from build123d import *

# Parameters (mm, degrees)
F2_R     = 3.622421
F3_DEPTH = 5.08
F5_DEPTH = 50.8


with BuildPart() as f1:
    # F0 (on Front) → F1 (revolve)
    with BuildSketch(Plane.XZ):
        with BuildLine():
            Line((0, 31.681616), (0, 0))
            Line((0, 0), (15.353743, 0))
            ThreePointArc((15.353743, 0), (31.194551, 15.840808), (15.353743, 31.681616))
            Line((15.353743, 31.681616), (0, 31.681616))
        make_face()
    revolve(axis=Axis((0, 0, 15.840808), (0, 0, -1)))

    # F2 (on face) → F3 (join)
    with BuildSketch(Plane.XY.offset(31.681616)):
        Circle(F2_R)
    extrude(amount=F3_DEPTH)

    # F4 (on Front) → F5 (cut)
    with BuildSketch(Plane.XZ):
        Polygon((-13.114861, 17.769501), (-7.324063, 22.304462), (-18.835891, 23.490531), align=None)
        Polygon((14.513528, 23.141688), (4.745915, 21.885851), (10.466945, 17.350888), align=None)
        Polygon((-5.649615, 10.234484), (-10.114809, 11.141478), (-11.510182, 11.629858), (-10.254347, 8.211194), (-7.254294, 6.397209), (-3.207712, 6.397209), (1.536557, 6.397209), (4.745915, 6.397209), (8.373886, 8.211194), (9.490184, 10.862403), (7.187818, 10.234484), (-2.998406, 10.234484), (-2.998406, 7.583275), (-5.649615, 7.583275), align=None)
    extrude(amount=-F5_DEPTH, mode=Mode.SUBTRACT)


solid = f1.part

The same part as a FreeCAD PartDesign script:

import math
import FreeCAD as App
import Part
import Sketcher
from FreeCAD import Vector
Q = App.Units.Quantity


def add_polygon(sketch, points):
    """Adds a closed chain of lines whose ends are joined by coincident constraints."""
    first, n = sketch.GeometryCount, len(points)
    for a, b in zip(points, points[1:] + points[:1]):
        sketch.addGeometry(Part.LineSegment(App.Vector(*a, 0), App.Vector(*b, 0)), False)
    for i in range(n):
        sketch.addConstraint(Sketcher.Constraint("Coincident", first + i, 2, first + (i + 1) % n, 1))

doc = App.newDocument("Part")
body = doc.addObject("PartDesign::Body", "Body")

# Sketch on XZ plane
sketch1 = body.newObject("Sketcher::SketchObject", "Sketch")
sketch1.AttachmentSupport = (doc.getObject("XZ_Plane"), [""])
sketch1.MapMode = "FlatFace"
sketch1.addGeometry([
    Part.LineSegment(Vector(0, 32, 0), Vector(0, 0, 0)),
    Part.LineSegment(Vector(0, 0, 0), Vector(15, 0, 0)),
    Part.ArcOfCircle(Part.Circle(Vector(15, 16, 0), Vector(0, 0, 1), 16), math.radians(-90), math.radians(90)),
    Part.LineSegment(Vector(15, 32, 0), Vector(0, 32, 0)),
], False)
sketch1.addConstraint([
    Sketcher.Constraint("Coincident", 0, 2, 1, 1),
    Sketcher.Constraint("Tangent", 1, 2, 2, 1),
    Sketcher.Constraint("Tangent", 2, 2, 3, 1),
    Sketcher.Constraint("Coincident", 3, 2, 0, 1),
    Sketcher.Constraint("Vertical", 0),
    Sketcher.Constraint("Horizontal", 1),
    Sketcher.Constraint("Horizontal", 3),
    Sketcher.Constraint("Coincident", 0, 2, -1, 1),
    Sketcher.Constraint("Radius", 2, 15.840808),
    Sketcher.Constraint("DistanceX", 1, 1, 1, 2, 15.353743),
])
revolution = body.newObject("PartDesign::Revolution", "Revolution")
revolution.Profile = sketch1
revolution.ReferenceAxis = (sketch1, ["V_Axis"])
revolution.Angle = 360

# Sketch on XY plane
sketch2 = body.newObject("Sketcher::SketchObject", "Sketch001")
sketch2.AttachmentSupport = (doc.getObject("XY_Plane"), [""])
sketch2.MapMode = "FlatFace"
sketch2.AttachmentOffset = App.Placement(Vector(0, 0, 31.681616), App.Rotation())
sketch2.addGeometry(Part.Circle(Vector(0, 0, 0), Vector(0, 0, 1), 3.6), False)
sketch2.addConstraint([
    Sketcher.Constraint("Coincident", 0, 3, -1, 1),
    Sketcher.Constraint("Diameter", 0, 7.244842),
])
pad1 = body.newObject("PartDesign::Pad", "Pad")
pad1.Profile = sketch2
pad1.Length = Q("0.2 in")

# Sketch on XZ plane
sketch3 = body.newObject("Sketcher::SketchObject", "Sketch002")
sketch3.AttachmentSupport = (doc.getObject("XZ_Plane"), [""])
sketch3.MapMode = "FlatFace"
add_polygon(sketch3, [(-13.1, 17.8), (-7.3, 22.3), (-18.8, 23.5)])  # lines 0-2
add_polygon(sketch3, [(14.5, 23.1), (4.7, 21.9), (10.5, 17.4)])  # lines 3-5
add_polygon(sketch3, [(-5.6, 10.2), (-10.1, 11.1), (-11.5, 11.6), (-10.3, 8.2), (-7.3, 6.4), (4.7, 6.4), (8.4, 8.2), (9.5, 10.9), (7.2, 10.2), (-3, 10.2), (-3, 7.6), (-5.6, 7.6)])  # lines 6-17
sketch3.addConstraint([
    Sketcher.Constraint("Horizontal", 10),
    Sketcher.Constraint("Horizontal", 14),
    Sketcher.Constraint("Vertical", 15),
    Sketcher.Constraint("Horizontal", 16),
    Sketcher.Constraint("Vertical", 17),
    Sketcher.Constraint("Horizontal", 8, 2, 11, 2),
    Sketcher.Constraint("Horizontal", 14, 2, 17, 2),
    Sketcher.Constraint("Vertical", 3, 2, 10, 2),
    Sketcher.Constraint("Equal", 16, 15),
    Sketcher.Constraint("Angle", 2, Q("-45 deg")),
    Sketcher.Constraint("DistanceX", 10, 1, 10, 2, 12.000209),
    Sketcher.Constraint("DistanceX", 16, 2, 16, 1, 2.651209),
    Sketcher.Constraint("DistanceY", -1, 1, 2, 2, 17.769501),
    Sketcher.Constraint("DistanceY", 4, 2, 5, 2, 5.7908),
    Sketcher.Constraint("Distance", 2, 8.090758),
    Sketcher.Constraint("Distance", 6, 4.55638),
    Sketcher.Constraint("Distance", 7, 1.478371),
    Sketcher.Constraint("Distance", 8, 3.64203),
    Sketcher.Constraint("DistanceX", 14, 2, 14, 1, 10.186224),
    Sketcher.Constraint("DistanceX", 1, 2, -1, 1, 18.835891),
    Sketcher.Constraint("DistanceY", -1, 1, 3, 2, 21.885851),
    Sketcher.Constraint("DistanceY", -1, 1, 4, 2, 17.350888),
    Sketcher.Constraint("DistanceX", -1, 1, 5, 2, 14.513528),
    Sketcher.Constraint("DistanceX", 6, 2, -1, 1, 10.114809),
    Sketcher.Constraint("DistanceY", -1, 1, 9, 2, 6.397209),
    Sketcher.Constraint("DistanceX", 1, 2, 0, 2, 11.511828),
    Sketcher.Constraint("DistanceY", 0, 2, 1, 2, 1.186069),
    Sketcher.Constraint("DistanceX", 3, 2, 4, 2, 5.72103),
    Sketcher.Constraint("DistanceX", 0, 2, 4, 2, 17.791008),
    Sketcher.Constraint("DistanceY", 6, 2, 4, 2, 6.20941),
    Sketcher.Constraint("DistanceY", 6, 2, 7, 2, 0.48838),
    Sketcher.Constraint("DistanceX", 8, 2, 10, 2, 15.000262),
    Sketcher.Constraint("DistanceX", 10, 2, 11, 2, 3.627971),
    Sketcher.Constraint("DistanceY", 11, 2, 12, 2, 2.651209),
    Sketcher.Constraint("DistanceX", 10, 2, 12, 2, 4.744269),
    Sketcher.Constraint("DistanceX", 13, 2, 11, 2, 1.186068),
])
pocket1 = body.newObject("PartDesign::Pocket", "Pocket")
pocket1.Profile = sketch3
pocket1.Length = Q("2 in")

doc.recompute()
